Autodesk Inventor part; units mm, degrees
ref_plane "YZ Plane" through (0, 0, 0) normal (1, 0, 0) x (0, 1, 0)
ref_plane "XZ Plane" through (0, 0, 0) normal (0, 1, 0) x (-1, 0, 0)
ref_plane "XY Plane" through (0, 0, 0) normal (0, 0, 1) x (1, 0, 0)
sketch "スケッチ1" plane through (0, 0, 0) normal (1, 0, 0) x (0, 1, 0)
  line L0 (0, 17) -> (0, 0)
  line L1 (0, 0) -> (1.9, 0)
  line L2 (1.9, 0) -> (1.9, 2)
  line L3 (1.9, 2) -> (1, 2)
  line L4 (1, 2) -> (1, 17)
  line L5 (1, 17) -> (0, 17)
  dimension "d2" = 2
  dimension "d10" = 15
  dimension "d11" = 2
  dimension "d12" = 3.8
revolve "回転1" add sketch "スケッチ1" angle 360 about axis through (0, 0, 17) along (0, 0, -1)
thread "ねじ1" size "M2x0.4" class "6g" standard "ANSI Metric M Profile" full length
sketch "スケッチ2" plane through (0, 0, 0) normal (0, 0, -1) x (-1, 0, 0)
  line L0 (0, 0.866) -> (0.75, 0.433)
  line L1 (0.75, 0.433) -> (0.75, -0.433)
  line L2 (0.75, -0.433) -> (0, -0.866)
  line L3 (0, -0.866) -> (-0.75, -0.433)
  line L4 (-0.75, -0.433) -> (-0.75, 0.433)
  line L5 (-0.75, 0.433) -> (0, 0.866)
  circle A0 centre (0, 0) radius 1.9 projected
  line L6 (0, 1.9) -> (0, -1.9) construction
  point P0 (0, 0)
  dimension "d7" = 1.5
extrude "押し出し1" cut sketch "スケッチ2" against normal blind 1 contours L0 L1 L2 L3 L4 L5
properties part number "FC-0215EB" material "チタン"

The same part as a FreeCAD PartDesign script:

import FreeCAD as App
import Part
import Sketcher
Q = App.Units.Quantity


def add_polygon(sketch, points):
    """Adds a closed chain of lines whose ends are joined by coincident constraints."""
    first, n = sketch.GeometryCount, len(points)
    for a, b in zip(points, points[1:] + points[:1]):
        sketch.addGeometry(Part.LineSegment(App.Vector(*a, 0), App.Vector(*b, 0)), False)
    for i in range(n):
        sketch.addConstraint(Sketcher.Constraint("Coincident", first + i, 2, first + (i + 1) % n, 1))

doc = App.newDocument("Part")
body = doc.addObject("PartDesign::Body", "Body")

sketch1 = body.newObject("Sketcher::SketchObject", "Sketch")
sketch1.AttachmentSupport = (doc.getObject("YZ_Plane"), [""])
sketch1.MapMode = "FlatFace"
add_polygon(sketch1, [(1, 17), (0, 17), (0, 0), (1.9, 0), (1.9, 2), (1, 2)])
sketch1.addConstraint([
    Sketcher.Constraint("Horizontal", 0),
    Sketcher.Constraint("Vertical", 1),
    Sketcher.Constraint("Horizontal", 2),
    Sketcher.Constraint("Vertical", 3),
    Sketcher.Constraint("Horizontal", 4),
    Sketcher.Constraint("Vertical", 5),
    Sketcher.Constraint("Coincident", 1, 2, -1, 1),
    Sketcher.Constraint("DistanceY", 3, 1, 3, 2, Q("2 mm")),
    Sketcher.Constraint("DistanceY", 5, 1, 5, 2, Q("15 mm")),
    Sketcher.Constraint("DistanceX", 0, 2, 0, 1, Q("1 mm")),
    Sketcher.Constraint("DistanceX", 2, 1, 2, 2, Q("1.9 mm")),
])
revolution = body.newObject("PartDesign::Revolution", "Revolution")
revolution.Profile = sketch1
revolution.ReferenceAxis = (sketch1, ["V_Axis"])
revolution.Angle = 360

sketch2 = body.newObject("Sketcher::SketchObject", "Sketch001")
sketch2.AttachmentSupport = (doc.getObject("XY_Plane"), [""])
sketch2.MapMode = "FlatFace"
add_polygon(sketch2, [(-0.75, 0.433), (0, 0.866), (0.75, 0.433), (0.75, -0.433), (0, -0.866), (-0.75, -0.433)])
sketch2.addConstraint([
    Sketcher.Constraint("Vertical", 2),
    Sketcher.Constraint("Vertical", 5),
    Sketcher.Constraint("Symmetric", 0, 2, 3, 2, -1, 1),
    Sketcher.Constraint("Symmetric", 1, 2, 4, 2, -1, 1),
    Sketcher.Constraint("PointOnObject", 0, 2, -2),
    Sketcher.Constraint("Parallel", 0, 3),
    Sketcher.Constraint("Horizontal", 2, 2, 4, 2),
    Sketcher.Constraint("DistanceX", 4, 2, 2, 2, Q("1.5 mm")),
    Sketcher.Constraint("Angle", 0, Q("29.9993 deg")),
    Sketcher.Constraint("DistanceY", 2, 2, 2, 1, Q("0.866 mm")),
])
pocket1 = body.newObject("PartDesign::Pocket", "Pocket")
pocket1.Profile = sketch2
pocket1.Length = 1
pocket1.Reversed = True

doc.recompute()
